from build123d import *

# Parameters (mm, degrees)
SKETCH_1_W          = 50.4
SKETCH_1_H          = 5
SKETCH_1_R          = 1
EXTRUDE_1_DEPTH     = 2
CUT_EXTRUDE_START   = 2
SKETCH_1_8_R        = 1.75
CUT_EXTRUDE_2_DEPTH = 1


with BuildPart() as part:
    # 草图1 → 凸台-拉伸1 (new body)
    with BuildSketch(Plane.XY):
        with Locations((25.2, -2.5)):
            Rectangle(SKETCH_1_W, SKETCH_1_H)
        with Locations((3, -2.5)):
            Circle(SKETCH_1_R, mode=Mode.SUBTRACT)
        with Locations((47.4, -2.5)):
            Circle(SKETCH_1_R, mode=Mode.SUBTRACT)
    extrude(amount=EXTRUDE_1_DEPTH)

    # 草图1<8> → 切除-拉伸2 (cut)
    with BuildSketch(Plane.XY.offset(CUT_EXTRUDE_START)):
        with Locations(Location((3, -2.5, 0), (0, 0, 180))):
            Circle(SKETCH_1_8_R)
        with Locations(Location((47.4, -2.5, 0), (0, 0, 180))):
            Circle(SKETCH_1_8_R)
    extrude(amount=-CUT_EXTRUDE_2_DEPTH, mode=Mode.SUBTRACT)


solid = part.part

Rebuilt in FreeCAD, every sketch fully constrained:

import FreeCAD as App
import Part
import Sketcher
Q = App.Units.Quantity

doc = App.newDocument("Part")
body = doc.addObject("PartDesign::Body", "Body")

sketch1 = body.newObject("Sketcher::SketchObject", "Sketch")
sketch1.AttachmentSupport = (doc.getObject("XY_Plane"), [""])
sketch1.MapMode = "FlatFace"
sketch1.addGeometry([
    Part.LineSegment(App.Vector(0, 0, 0), App.Vector(0, -5, 0)),
    Part.LineSegment(App.Vector(0, -5, 0), App.Vector(50.4, -5, 0)),
    Part.LineSegment(App.Vector(50.4, -5, 0), App.Vector(50.4, 0, 0)),
    Part.LineSegment(App.Vector(50.4, 0, 0), App.Vector(0, 0, 0)),
    Part.Circle(App.Vector(3, -2.5, 0), App.Vector(0, 0, 1), 1),
    Part.Circle(App.Vector(47.4, -2.5, 0), App.Vector(0, 0, 1), 1),
], False)
sketch1.addConstraint([
    Sketcher.Constraint("Coincident", 0, 2, 1, 1),
    Sketcher.Constraint("Coincident", 1, 2, 2, 1),
    Sketcher.Constraint("Coincident", 2, 2, 3, 1),
    Sketcher.Constraint("Coincident", 3, 2, 0, 1),
    Sketcher.Constraint("Vertical", 0),
    Sketcher.Constraint("Horizontal", 1),
    Sketcher.Constraint("Vertical", 2),
    Sketcher.Constraint("Horizontal", 3),
    Sketcher.Constraint("Coincident", 3, 2, -1, 1),
    Sketcher.Constraint("Equal", 4, 5),
    Sketcher.Constraint("Horizontal", 4, 3, 5, 3),
    Sketcher.Constraint("Diameter", 4, Q("2 mm")),
    Sketcher.Constraint("DistanceY", 0, 2, 0, 1, Q("5 mm")),
    Sketcher.Constraint("DistanceX", 1, 1, 1, 2, Q("50.4 mm")),
    Sketcher.Constraint("DistanceX", -1, 1, 4, 3, Q("3 mm")),
    Sketcher.Constraint("DistanceX", 5, 3, 1, 2, Q("3 mm")),
    Sketcher.Constraint("DistanceY", 4, 3, -1, 1, Q("2.5 mm")),
])
pad1 = body.newObject("PartDesign::Pad", "Pad")
pad1.Profile = sketch1
pad1.Length = 2

sketch2 = body.newObject("Sketcher::SketchObject", "Sketch001")
sketch2.AttachmentSupport = (doc.getObject("XY_Plane"), [""])
sketch2.MapMode = "FlatFace"
sketch2.AttachmentOffset = App.Placement(App.Vector(0, 0, 2), App.Rotation())
sketch2.addGeometry([
    Part.Circle(App.Vector(3, -2.5, 0), App.Vector(0, 0, 1), 1.8),
    Part.Circle(App.Vector(47.4, -2.5, 0), App.Vector(0, 0, 1), 1.8),
], False)
sketch2.addConstraint([
    Sketcher.Constraint("Equal", 0, 1),
    Sketcher.Constraint("Horizontal", 0, 3, 1, 3),
    Sketcher.Constraint("Diameter", 0, Q("3.5 mm")),
    Sketcher.Constraint("DistanceX", -1, 1, 0, 3, Q("3 mm")),
    Sketcher.Constraint("DistanceY", 0, 3, -1, 1, Q("2.5 mm")),
    Sketcher.Constraint("DistanceX", -1, 1, 1, 3, Q("47.4 mm")),
])
pocket1 = body.newObject("PartDesign::Pocket", "Pocket")
pocket1.Profile = sketch2
pocket1.Length = 1

doc.recompute()
